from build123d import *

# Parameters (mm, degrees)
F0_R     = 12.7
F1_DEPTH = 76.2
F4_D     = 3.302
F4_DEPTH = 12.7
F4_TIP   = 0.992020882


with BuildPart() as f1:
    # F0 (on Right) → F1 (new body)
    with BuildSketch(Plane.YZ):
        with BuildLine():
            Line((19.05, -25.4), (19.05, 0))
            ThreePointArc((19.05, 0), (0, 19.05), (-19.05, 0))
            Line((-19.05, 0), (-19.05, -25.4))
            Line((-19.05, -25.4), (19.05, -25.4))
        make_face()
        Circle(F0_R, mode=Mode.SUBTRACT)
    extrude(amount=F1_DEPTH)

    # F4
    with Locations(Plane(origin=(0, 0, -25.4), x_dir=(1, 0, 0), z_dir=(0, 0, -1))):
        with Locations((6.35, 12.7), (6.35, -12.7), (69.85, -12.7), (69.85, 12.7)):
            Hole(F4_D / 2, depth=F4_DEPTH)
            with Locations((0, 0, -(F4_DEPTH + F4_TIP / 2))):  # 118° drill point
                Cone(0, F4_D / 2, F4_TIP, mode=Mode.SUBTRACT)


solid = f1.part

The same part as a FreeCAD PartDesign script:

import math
import FreeCAD as App
import Part
import Sketcher

V = App.Vector
Q = App.Units.Quantity

doc = App.newDocument("Part")
body = doc.addObject("PartDesign::Body", "Body")

# Sketch on YZ plane
sketch1 = doc.addObject("Sketcher::SketchObject", "Sketch")
body.addObject(sketch1)
sketch1.AttachmentSupport = (doc.YZ_Plane, [""])
sketch1.MapMode = "FlatFace"
sketch1.addGeometry([
    Part.LineSegment(V(19, -25, 0), V(19, 0, 0)),  # 0
    Part.ArcOfCircle(Part.Circle(V(0, 0, 0), V(0, 0, 1), 19), math.radians(0), math.radians(180)),  # 1
    Part.LineSegment(V(-19, 0, 0), V(-19, -25, 0)),  # 2
    Part.LineSegment(V(-19, -25, 0), V(19, -25, 0)),  # 3
    Part.Circle(V(0, 0, 0), V(0, 0, 1), 13),  # 4
], False)
sketch1.addConstraint([
    Sketcher.Constraint("Tangent", 0, 2, 1, 1),
    Sketcher.Constraint("Tangent", 1, 2, 2, 1),
    Sketcher.Constraint("Coincident", 2, 2, 3, 1),
    Sketcher.Constraint("Coincident", 3, 2, 0, 1),
    Sketcher.Constraint("Vertical", 0),
    Sketcher.Constraint("Vertical", 2),
    Sketcher.Constraint("Horizontal", 3),
    Sketcher.Constraint("Coincident", 1, 3, -1, 1),
    Sketcher.Constraint("Coincident", 4, 3, -1, 1),
    Sketcher.Constraint("Diameter", 4, Q("1 in")),
    Sketcher.Constraint("DistanceY", 0, 1, 0, 2, Q("1 in")),
    Sketcher.Constraint("Radius", 1, Q("0.75 in")),
])
pad1 = doc.addObject("PartDesign::Pad", "Pad")
body.addObject(pad1)
pad1.Profile = sketch1
pad1.Length = Q("3 in")

# Sketch on XY plane
sketch2 = doc.addObject("Sketcher::SketchObject", "Sketch001")
body.addObject(sketch2)
sketch2.AttachmentSupport = (doc.XY_Plane, [""])
sketch2.MapMode = "FlatFace"
sketch2.AttachmentOffset = App.Placement(V(0, 0, -1 * 25.4), App.Rotation())
sketch2.addGeometry([
    Part.Circle(V(6.3, -12.7, 0), V(0, 0, 1), 1.7),
    Part.Circle(V(6.3, 12.7, 0), V(0, 0, 1), 1.7),
    Part.Circle(V(69.8, 12.7, 0), V(0, 0, 1), 1.7),
    Part.Circle(V(69.8, -12.7, 0), V(0, 0, 1), 1.7),
], False)
sketch2.addConstraint([
    Sketcher.Constraint("Equal", 0, 1),
    Sketcher.Constraint("Equal", 1, 2),
    Sketcher.Constraint("Equal", 2, 3),
    Sketcher.Constraint("Symmetric", 0, 3, 1, 3, -1),
    Sketcher.Constraint("Symmetric", 2, 3, 3, 3, -1),
    Sketcher.Constraint("Horizontal", 1, 3, 2, 3),
    Sketcher.Constraint("Diameter", 0, Q("0.13 in")),
    Sketcher.Constraint("DistanceY", 0, 3, 1, 3, Q("1 in")),
    Sketcher.Constraint("DistanceX", 1, 3, 2, 3, Q("2.5 in")),
    Sketcher.Constraint("DistanceX", -1, 1, 0, 3, Q("0.25 in")),
])
doc.recompute()
hole = doc.addObject("PartDesign::Hole", "Hole")
body.addObject(hole)
hole.Profile = sketch2
hole.ThreadType = "None"
hole.Diameter = Q("0.13 in")
hole.DepthType = "Dimension"
hole.Depth = Q("0.5 in")
hole.DrillPoint = "Angled"
hole.DrillPointAngle = 118
hole.Reversed = True

doc.recompute()
